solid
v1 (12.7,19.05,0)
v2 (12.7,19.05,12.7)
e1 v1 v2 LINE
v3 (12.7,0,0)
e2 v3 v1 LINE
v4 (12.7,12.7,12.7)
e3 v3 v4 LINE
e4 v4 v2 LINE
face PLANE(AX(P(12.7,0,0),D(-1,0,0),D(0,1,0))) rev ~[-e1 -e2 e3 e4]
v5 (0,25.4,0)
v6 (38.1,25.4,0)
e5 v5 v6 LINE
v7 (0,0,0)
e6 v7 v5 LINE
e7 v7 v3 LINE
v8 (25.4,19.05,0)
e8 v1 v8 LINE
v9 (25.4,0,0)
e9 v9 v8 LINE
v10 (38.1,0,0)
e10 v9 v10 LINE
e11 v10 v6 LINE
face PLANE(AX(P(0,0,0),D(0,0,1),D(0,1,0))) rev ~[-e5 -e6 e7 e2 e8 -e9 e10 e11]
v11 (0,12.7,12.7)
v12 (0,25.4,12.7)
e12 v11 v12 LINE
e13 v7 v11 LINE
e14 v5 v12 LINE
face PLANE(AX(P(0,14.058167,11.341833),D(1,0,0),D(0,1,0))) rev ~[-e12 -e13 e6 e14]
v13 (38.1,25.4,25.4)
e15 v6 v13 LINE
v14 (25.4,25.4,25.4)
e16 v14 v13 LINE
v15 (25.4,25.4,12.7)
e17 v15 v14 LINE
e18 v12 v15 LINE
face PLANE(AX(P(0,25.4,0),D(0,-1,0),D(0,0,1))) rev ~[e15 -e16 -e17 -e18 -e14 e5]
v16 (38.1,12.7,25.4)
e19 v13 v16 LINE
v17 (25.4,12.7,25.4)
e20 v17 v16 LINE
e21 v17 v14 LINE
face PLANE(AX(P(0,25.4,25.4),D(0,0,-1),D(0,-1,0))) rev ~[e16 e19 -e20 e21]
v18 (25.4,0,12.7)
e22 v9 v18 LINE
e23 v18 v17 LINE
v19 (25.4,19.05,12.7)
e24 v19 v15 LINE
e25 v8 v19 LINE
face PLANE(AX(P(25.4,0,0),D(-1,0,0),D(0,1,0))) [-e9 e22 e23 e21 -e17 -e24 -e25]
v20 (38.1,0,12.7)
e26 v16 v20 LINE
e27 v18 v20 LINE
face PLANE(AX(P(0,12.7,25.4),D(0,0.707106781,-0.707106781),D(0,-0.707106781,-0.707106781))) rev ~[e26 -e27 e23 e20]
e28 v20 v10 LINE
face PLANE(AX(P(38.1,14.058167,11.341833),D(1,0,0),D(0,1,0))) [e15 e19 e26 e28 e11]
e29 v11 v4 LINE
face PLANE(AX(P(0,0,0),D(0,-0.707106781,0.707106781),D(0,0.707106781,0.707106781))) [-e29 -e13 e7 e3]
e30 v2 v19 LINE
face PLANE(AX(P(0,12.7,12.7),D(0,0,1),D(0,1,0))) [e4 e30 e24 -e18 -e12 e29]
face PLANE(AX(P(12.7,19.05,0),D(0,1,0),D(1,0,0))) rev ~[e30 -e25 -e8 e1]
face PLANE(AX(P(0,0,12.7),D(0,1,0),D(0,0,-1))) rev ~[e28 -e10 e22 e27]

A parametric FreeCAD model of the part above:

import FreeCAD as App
import Part
import Sketcher
Q = App.Units.Quantity

doc = App.newDocument("Part")
params = doc.addObject("Spreadsheet::Sheet", "Params")
for row, (alias, value) in enumerate([
    ("sketch1_width", "1 in"),
    ("sketch1_width2", "0.5 in"),
    ("pad1_length", "1.5 in"),
    ("sketch2_width", "0.5 in"),
    ("sketch2_height", "0.75 in"),
    ("pocket1_length", "1 in"),
    ("sketch3_width", "1 in"),
    ("sketch3_width2", "0.5 in"),
    ("pocket2_length", "1 in"),
], start=1):
    params.set(f"A{row}", alias)
    params.set(f"B{row}", "=" + value)
    params.setAlias(f"B{row}", alias)

body = doc.addObject("PartDesign::Body", "Body")

# Sketch on YZ plane
sketch1 = doc.addObject("Sketcher::SketchObject", "Sketch")
body.addObject(sketch1)
sketch1.AttachmentSupport = (doc.YZ_Plane, [""])
sketch1.MapMode = "FlatFace"
sketch1.addGeometry(Part.LineSegment(App.Vector(0, 13, 0), App.Vector(0, 0, 0)), False)
sketch1.addGeometry(Part.LineSegment(App.Vector(0, 0, 0), App.Vector(25, 0, 0)), False)
sketch1.addGeometry(Part.LineSegment(App.Vector(25, 0, 0), App.Vector(25, 25, 0)), False)
sketch1.addGeometry(Part.LineSegment(App.Vector(25, 25, 0), App.Vector(13, 25, 0)), False)
sketch1.addGeometry(Part.LineSegment(App.Vector(13, 25, 0), App.Vector(0, 13, 0)), False)
sketch1.addConstraint(Sketcher.Constraint("Coincident", 0, 2, 1, 1))
sketch1.addConstraint(Sketcher.Constraint("Coincident", 1, 2, 2, 1))
sketch1.addConstraint(Sketcher.Constraint("Coincident", 2, 2, 3, 1))
sketch1.addConstraint(Sketcher.Constraint("Coincident", 3, 2, 4, 1))
sketch1.addConstraint(Sketcher.Constraint("Coincident", 4, 2, 0, 1))
sketch1.addConstraint(Sketcher.Constraint("Vertical", 0))
sketch1.addConstraint(Sketcher.Constraint("Horizontal", 1))
sketch1.addConstraint(Sketcher.Constraint("Vertical", 2))
sketch1.addConstraint(Sketcher.Constraint("Horizontal", 3))
sketch1.addConstraint(Sketcher.Constraint("Coincident", 0, 2, -1, 1))
sketch1.addConstraint(Sketcher.Constraint("Equal", 3, 0))
sketch1.addConstraint(Sketcher.Constraint("Equal", 1, 2))
sketch1.addConstraint(Sketcher.Constraint("DistanceX", 1, 1, 1, 2, Q("1 in")))
sketch1.addConstraint(Sketcher.Constraint("DistanceX", 3, 2, 3, 1, Q("0.5 in")))
sketch1.setExpression("Constraints[12]", "Params.sketch1_width")
sketch1.setExpression("Constraints[13]", "Params.sketch1_width2")
pad1 = doc.addObject("PartDesign::Pad", "Pad")
body.addObject(pad1)
pad1.Profile = sketch1
pad1.setExpression("Length", "Params.pad1_length")

# Sketch on XY plane
sketch2 = doc.addObject("Sketcher::SketchObject", "Sketch001")
body.addObject(sketch2)
sketch2.AttachmentSupport = (doc.XY_Plane, [""])
sketch2.MapMode = "FlatFace"
sketch2.addGeometry(Part.LineSegment(App.Vector(13, 19, 0), App.Vector(13, 0, 0)), False)
sketch2.addGeometry(Part.LineSegment(App.Vector(13, 0, 0), App.Vector(25, 0, 0)), False)
sketch2.addGeometry(Part.LineSegment(App.Vector(25, 0, 0), App.Vector(25, 19, 0)), False)
sketch2.addGeometry(Part.LineSegment(App.Vector(25, 19, 0), App.Vector(13, 19, 0)), False)
sketch2.addConstraint(Sketcher.Constraint("Coincident", 0, 2, 1, 1))
sketch2.addConstraint(Sketcher.Constraint("Coincident", 1, 2, 2, 1))
sketch2.addConstraint(Sketcher.Constraint("Coincident", 2, 2, 3, 1))
sketch2.addConstraint(Sketcher.Constraint("Coincident", 3, 2, 0, 1))
sketch2.addConstraint(Sketcher.Constraint("Vertical", 0))
sketch2.addConstraint(Sketcher.Constraint("Horizontal", 1))
sketch2.addConstraint(Sketcher.Constraint("Vertical", 2))
sketch2.addConstraint(Sketcher.Constraint("Horizontal", 3))
sketch2.addConstraint(Sketcher.Constraint("PointOnObject", 0, 2, -1))
sketch2.addConstraint(Sketcher.Constraint("DistanceX", 1, 1, 1, 2, Q("0.5 in")))
sketch2.addConstraint(Sketcher.Constraint("DistanceX", -1, 1, 1, 2, Q("1 in")))
sketch2.addConstraint(Sketcher.Constraint("DistanceY", 0, 2, 0, 1, Q("0.75 in")))
sketch2.setExpression("Constraints[9]", "Params.sketch2_width")
sketch2.setExpression("Constraints[11]", "Params.sketch2_height")
pocket1 = doc.addObject("PartDesign::Pocket", "Pocket")
body.addObject(pocket1)
pocket1.Profile = sketch2
pocket1.setExpression("Length", "Params.pocket1_length")
pocket1.Reversed = True

# Sketch on YZ plane
sketch3 = doc.addObject("Sketcher::SketchObject", "Sketch002")
body.addObject(sketch3)
sketch3.AttachmentSupport = (doc.YZ_Plane, [""])
sketch3.MapMode = "FlatFace"
sketch3.addGeometry(Part.LineSegment(App.Vector(0, 25, 0), App.Vector(0, 0, 0)), False)
sketch3.addGeometry(Part.LineSegment(App.Vector(0, 0, 0), App.Vector(13, 13, 0)), False)
sketch3.addGeometry(Part.LineSegment(App.Vector(13, 13, 0), App.Vector(25, 13, 0)), False)
sketch3.addGeometry(Part.LineSegment(App.Vector(25, 13, 0), App.Vector(25, 25, 0)), False)
sketch3.addGeometry(Part.LineSegment(App.Vector(25, 25, 0), App.Vector(0, 25, 0)), False)
sketch3.addConstraint(Sketcher.Constraint("Coincident", 0, 2, 1, 1))
sketch3.addConstraint(Sketcher.Constraint("Coincident", 1, 2, 2, 1))
sketch3.addConstraint(Sketcher.Constraint("Coincident", 2, 2, 3, 1))
sketch3.addConstraint(Sketcher.Constraint("Coincident", 3, 2, 4, 1))
sketch3.addConstraint(Sketcher.Constraint("Coincident", 4, 2, 0, 1))
sketch3.addConstraint(Sketcher.Constraint("Vertical", 0))
sketch3.addConstraint(Sketcher.Constraint("Horizontal", 2))
sketch3.addConstraint(Sketcher.Constraint("Vertical", 3))
sketch3.addConstraint(Sketcher.Constraint("Horizontal", 4))
sketch3.addConstraint(Sketcher.Constraint("Coincident", 0, 2, -1, 1))
sketch3.addConstraint(Sketcher.Constraint("Equal", 4, 0))
sketch3.addConstraint(Sketcher.Constraint("Equal", 2, 3))
sketch3.addConstraint(Sketcher.Constraint("DistanceX", 4, 2, 4, 1, Q("1 in")))
sketch3.addConstraint(Sketcher.Constraint("DistanceX", 2, 1, 2, 2, Q("0.5 in")))
sketch3.setExpression("Constraints[12]", "Params.sketch3_width")
sketch3.setExpression("Constraints[13]", "Params.sketch3_width2")
pocket2 = doc.addObject("PartDesign::Pocket", "Pocket001")
body.addObject(pocket2)
pocket2.Profile = sketch3
pocket2.setExpression("Length", "Params.pocket2_length")
pocket2.Reversed = True

doc.recompute()
